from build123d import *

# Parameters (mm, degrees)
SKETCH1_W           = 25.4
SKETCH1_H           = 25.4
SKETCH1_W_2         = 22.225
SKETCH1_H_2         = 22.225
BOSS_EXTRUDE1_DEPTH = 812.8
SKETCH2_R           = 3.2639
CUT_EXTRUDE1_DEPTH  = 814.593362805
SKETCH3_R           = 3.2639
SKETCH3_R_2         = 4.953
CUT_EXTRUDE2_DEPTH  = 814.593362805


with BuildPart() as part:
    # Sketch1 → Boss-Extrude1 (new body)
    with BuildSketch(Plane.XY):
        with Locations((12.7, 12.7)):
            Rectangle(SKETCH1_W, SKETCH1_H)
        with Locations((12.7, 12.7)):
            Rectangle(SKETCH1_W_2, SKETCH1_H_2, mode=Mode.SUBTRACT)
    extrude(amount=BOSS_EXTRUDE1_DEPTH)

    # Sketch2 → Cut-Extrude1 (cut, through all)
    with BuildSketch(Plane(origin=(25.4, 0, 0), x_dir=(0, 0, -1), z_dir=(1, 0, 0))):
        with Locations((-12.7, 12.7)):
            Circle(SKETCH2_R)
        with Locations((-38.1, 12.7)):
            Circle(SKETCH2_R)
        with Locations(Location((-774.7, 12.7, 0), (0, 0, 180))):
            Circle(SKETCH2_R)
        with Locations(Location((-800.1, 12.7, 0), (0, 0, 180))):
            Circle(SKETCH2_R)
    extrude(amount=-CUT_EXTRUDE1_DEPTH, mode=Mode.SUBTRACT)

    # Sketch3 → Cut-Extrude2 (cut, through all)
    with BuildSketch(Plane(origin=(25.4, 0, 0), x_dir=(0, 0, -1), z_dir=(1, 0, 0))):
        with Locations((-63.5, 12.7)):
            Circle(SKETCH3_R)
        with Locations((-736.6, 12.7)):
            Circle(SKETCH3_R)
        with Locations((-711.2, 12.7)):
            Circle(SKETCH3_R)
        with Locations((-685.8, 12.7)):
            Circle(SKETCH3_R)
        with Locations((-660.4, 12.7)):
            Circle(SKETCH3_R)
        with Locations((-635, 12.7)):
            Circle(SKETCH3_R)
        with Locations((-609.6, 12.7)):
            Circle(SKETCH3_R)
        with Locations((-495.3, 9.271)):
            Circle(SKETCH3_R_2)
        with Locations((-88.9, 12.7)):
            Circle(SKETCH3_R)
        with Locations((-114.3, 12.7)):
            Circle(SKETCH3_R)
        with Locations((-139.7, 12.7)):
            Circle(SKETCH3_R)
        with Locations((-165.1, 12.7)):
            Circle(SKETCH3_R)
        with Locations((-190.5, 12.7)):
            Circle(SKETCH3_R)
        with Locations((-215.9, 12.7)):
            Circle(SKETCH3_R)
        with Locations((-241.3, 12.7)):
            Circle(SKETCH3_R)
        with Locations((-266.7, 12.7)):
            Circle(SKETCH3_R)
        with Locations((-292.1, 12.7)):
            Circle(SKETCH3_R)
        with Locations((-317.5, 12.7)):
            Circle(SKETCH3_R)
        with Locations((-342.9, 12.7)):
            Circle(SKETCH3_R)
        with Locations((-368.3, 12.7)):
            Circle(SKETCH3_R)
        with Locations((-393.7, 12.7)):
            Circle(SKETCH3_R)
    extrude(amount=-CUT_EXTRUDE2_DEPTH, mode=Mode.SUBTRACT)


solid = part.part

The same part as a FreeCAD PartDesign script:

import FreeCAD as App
import Part
import Sketcher
from FreeCAD import Vector
Q = App.Units.Quantity


def add_polygon(sketch, points):
    """Adds a closed chain of lines whose ends are joined by coincident constraints."""
    first, n = sketch.GeometryCount, len(points)
    for a, b in zip(points, points[1:] + points[:1]):
        sketch.addGeometry(Part.LineSegment(App.Vector(*a, 0), App.Vector(*b, 0)), False)
    for i in range(n):
        sketch.addConstraint(Sketcher.Constraint("Coincident", first + i, 2, first + (i + 1) % n, 1))

doc = App.newDocument("Part")
body = doc.addObject("PartDesign::Body", "Body")

# Sketch on XY plane
sketch1 = body.newObject("Sketcher::SketchObject", "Sketch")
sketch1.AttachmentSupport = (doc.getObject("XY_Plane"), [""])
sketch1.MapMode = "FlatFace"
add_polygon(sketch1, [(0, 25.4), (0, 0), (25.4, 0), (25.4, 25.4)])  # lines 0-3
add_polygon(sketch1, [(23.8125, 1.5875), (1.5875, 1.5875), (1.5875, 23.8125), (23.8125, 23.8125)])  # lines 4-7
sketch1.addConstraint(Sketcher.Constraint("Vertical", 0))
sketch1.addConstraint(Sketcher.Constraint("Horizontal", 1))
sketch1.addConstraint(Sketcher.Constraint("Vertical", 2))
sketch1.addConstraint(Sketcher.Constraint("Horizontal", 3))
sketch1.addConstraint(Sketcher.Constraint("Horizontal", 4))
sketch1.addConstraint(Sketcher.Constraint("Vertical", 5))
sketch1.addConstraint(Sketcher.Constraint("Horizontal", 6))
sketch1.addConstraint(Sketcher.Constraint("Vertical", 7))
sketch1.addConstraint(Sketcher.Constraint("Coincident", 0, 2, -1, 1))
sketch1.addConstraint(Sketcher.Constraint("Equal", 3, 0))
sketch1.addConstraint(Sketcher.Constraint("Equal", 6, 5))
sketch1.addConstraint(Sketcher.Constraint("DistanceX", 1, 1, 1, 2, Q("1 in")))
sketch1.addConstraint(Sketcher.Constraint("DistanceX", 4, 2, 4, 1, Q("0.875 in")))
sketch1.addConstraint(Sketcher.Constraint("DistanceX", -1, 1, 4, 2, Q("0.0625 in")))
sketch1.addConstraint(Sketcher.Constraint("DistanceY", -1, 1, 4, 2, Q("0.0625 in")))
pad1 = body.newObject("PartDesign::Pad", "Pad")
pad1.Profile = sketch1
pad1.Length = Q("32 in")

# Sketch on YZ plane
sketch2 = body.newObject("Sketcher::SketchObject", "Sketch001")
sketch2.AttachmentSupport = (doc.getObject("YZ_Plane"), [""])
sketch2.MapMode = "FlatFace"
sketch2.AttachmentOffset = App.Placement(Vector(0, 0, 1 * 25.4), App.Rotation())
sketch2.addGeometry(Part.Circle(Vector(12.7, 12.7, 0), Vector(0, 0, 1), 3.2639), False)
sketch2.addGeometry(Part.Circle(Vector(12.7, 38.1, 0), Vector(0, 0, 1), 3.2639), False)
sketch2.addGeometry(Part.Circle(Vector(12.7, 774.7, 0), Vector(0, 0, 1), 3.2639), False)
sketch2.addGeometry(Part.Circle(Vector(12.7, 800.1, 0), Vector(0, 0, 1), 3.2639), False)
sketch2.addConstraint(Sketcher.Constraint("Equal", 0, 1))
sketch2.addConstraint(Sketcher.Constraint("Equal", 1, 2))
sketch2.addConstraint(Sketcher.Constraint("Equal", 2, 3))
sketch2.addConstraint(Sketcher.Constraint("Vertical", 0, 3, 1, 3))
sketch2.addConstraint(Sketcher.Constraint("Vertical", 1, 3, 2, 3))
sketch2.addConstraint(Sketcher.Constraint("Vertical", 2, 3, 3, 3))
sketch2.addConstraint(Sketcher.Constraint("Diameter", 0, Q("0.257 in")))
sketch2.addConstraint(Sketcher.Constraint("DistanceY", 0, 3, 1, 3, Q("1 in")))
sketch2.addConstraint(Sketcher.Constraint("DistanceY", 1, 3, 2, 3, Q("29 in")))
sketch2.addConstraint(Sketcher.Constraint("DistanceY", 2, 3, 3, 3, Q("1 in")))
sketch2.addConstraint(Sketcher.Constraint("DistanceX", -1, 1, 0, 3, Q("0.5 in")))
sketch2.addConstraint(Sketcher.Constraint("DistanceY", -1, 1, 0, 3, Q("0.5 in")))
pocket1 = body.newObject("PartDesign::Pocket", "Pocket")
pocket1.Profile = sketch2
pocket1.Type = "ThroughAll"

# Sketch on YZ plane
sketch3 = body.newObject("Sketcher::SketchObject", "Sketch002")
sketch3.AttachmentSupport = (doc.getObject("YZ_Plane"), [""])
sketch3.MapMode = "FlatFace"
sketch3.AttachmentOffset = App.Placement(Vector(0, 0, 1 * 25.4), App.Rotation())
sketch3.addGeometry(Part.Circle(Vector(12.7, 63.5, 0), Vector(0, 0, 1), 3.2639), False)
sketch3.addGeometry(Part.Circle(Vector(12.7, 736.6, 0), Vector(0, 0, 1), 3.2639), False)
sketch3.addGeometry(Part.Circle(Vector(12.7, 711.2, 0), Vector(0, 0, 1), 3.2639), False)
sketch3.addGeometry(Part.Circle(Vector(12.7, 685.8, 0), Vector(0, 0, 1), 3.2639), False)
sketch3.addGeometry(Part.Circle(Vector(12.7, 660.4, 0), Vector(0, 0, 1), 3.2639), False)
sketch3.addGeometry(Part.Circle(Vector(12.7, 635, 0), Vector(0, 0, 1), 3.2639), False)
sketch3.addGeometry(Part.Circle(Vector(12.7, 609.6, 0), Vector(0, 0, 1), 3.2639), False)
sketch3.addGeometry(Part.Circle(Vector(9.271, 495.3, 0), Vector(0, 0, 1), 4.953), False)
sketch3.addGeometry(Part.Circle(Vector(12.7, 88.9, 0), Vector(0, 0, 1), 3.2639), False)
sketch3.addGeometry(Part.Circle(Vector(12.7, 114.3, 0), Vector(0, 0, 1), 3.2639), False)
sketch3.addGeometry(Part.Circle(Vector(12.7, 139.7, 0), Vector(0, 0, 1), 3.2639), False)
sketch3.addGeometry(Part.Circle(Vector(12.7, 165.1, 0), Vector(0, 0, 1), 3.2639), False)
sketch3.addGeometry(Part.Circle(Vector(12.7, 190.5, 0), Vector(0, 0, 1), 3.2639), False)
sketch3.addGeometry(Part.Circle(Vector(12.7, 215.9, 0), Vector(0, 0, 1), 3.2639), False)
sketch3.addGeometry(Part.Circle(Vector(12.7, 241.3, 0), Vector(0, 0, 1), 3.2639), False)
sketch3.addGeometry(Part.Circle(Vector(12.7, 266.7, 0), Vector(0, 0, 1), 3.2639), False)
sketch3.addGeometry(Part.Circle(Vector(12.7, 292.1, 0), Vector(0, 0, 1), 3.2639), False)
sketch3.addGeometry(Part.Circle(Vector(12.7, 317.5, 0), Vector(0, 0, 1), 3.2639), False)
sketch3.addGeometry(Part.Circle(Vector(12.7, 342.9, 0), Vector(0, 0, 1), 3.2639), False)
sketch3.addGeometry(Part.Circle(Vector(12.7, 368.3, 0), Vector(0, 0, 1), 3.2639), False)
sketch3.addGeometry(Part.Circle(Vector(12.7, 393.7, 0), Vector(0, 0, 1), 3.2639), False)
sketch3.addConstraint(Sketcher.Constraint("Equal", 0, 1))
sketch3.addConstraint(Sketcher.Constraint("Equal", 1, 2))
sketch3.addConstraint(Sketcher.Constraint("Equal", 2, 3))
sketch3.addConstraint(Sketcher.Constraint("Equal", 3, 4))
sketch3.addConstraint(Sketcher.Constraint("Equal", 4, 5))
sketch3.addConstraint(Sketcher.Constraint("Equal", 5, 6))
sketch3.addConstraint(Sketcher.Constraint("Equal", 6, 8))
sketch3.addConstraint(Sketcher.Constraint("Equal", 8, 9))
sketch3.addConstraint(Sketcher.Constraint("Equal", 9, 10))
sketch3.addConstraint(Sketcher.Constraint("Equal", 10, 11))
sketch3.addConstraint(Sketcher.Constraint("Equal", 11, 12))
sketch3.addConstraint(Sketcher.Constraint("Equal", 12, 13))
sketch3.addConstraint(Sketcher.Constraint("Equal", 13, 14))
sketch3.addConstraint(Sketcher.Constraint("Equal", 14, 15))
sketch3.addConstraint(Sketcher.Constraint("Equal", 15, 16))
sketch3.addConstraint(Sketcher.Constraint("Equal", 16, 17))
sketch3.addConstraint(Sketcher.Constraint("Equal", 17, 18))
sketch3.addConstraint(Sketcher.Constraint("Equal", 18, 19))
sketch3.addConstraint(Sketcher.Constraint("Equal", 19, 20))
sketch3.addConstraint(Sketcher.Constraint("Vertical", 0, 3, 1, 3))
sketch3.addConstraint(Sketcher.Constraint("Vertical", 1, 3, 2, 3))
sketch3.addConstraint(Sketcher.Constraint("Vertical", 2, 3, 3, 3))
sketch3.addConstraint(Sketcher.Constraint("Vertical", 3, 3, 4, 3))
sketch3.addConstraint(Sketcher.Constraint("Vertical", 4, 3, 5, 3))
sketch3.addConstraint(Sketcher.Constraint("Vertical", 5, 3, 6, 3))
sketch3.addConstraint(Sketcher.Constraint("Vertical", 6, 3, 8, 3))
sketch3.addConstraint(Sketcher.Constraint("Vertical", 8, 3, 9, 3))
sketch3.addConstraint(Sketcher.Constraint("Vertical", 9, 3, 10, 3))
sketch3.addConstraint(Sketcher.Constraint("Vertical", 10, 3, 11, 3))
sketch3.addConstraint(Sketcher.Constraint("Vertical", 11, 3, 12, 3))
sketch3.addConstraint(Sketcher.Constraint("Vertical", 12, 3, 13, 3))
sketch3.addConstraint(Sketcher.Constraint("Vertical", 13, 3, 14, 3))
sketch3.addConstraint(Sketcher.Constraint("Vertical", 14, 3, 15, 3))
sketch3.addConstraint(Sketcher.Constraint("Vertical", 15, 3, 16, 3))
sketch3.addConstraint(Sketcher.Constraint("Vertical", 16, 3, 17, 3))
sketch3.addConstraint(Sketcher.Constraint("Vertical", 17, 3, 18, 3))
sketch3.addConstraint(Sketcher.Constraint("Vertical", 18, 3, 19, 3))
sketch3.addConstraint(Sketcher.Constraint("Vertical", 19, 3, 20, 3))
sketch3.addConstraint(Sketcher.Constraint("Diameter", 7, Q("0.39 in")))
sketch3.addConstraint(Sketcher.Constraint("Diameter", 0, Q("0.257 in")))
sketch3.addConstraint(Sketcher.Constraint("DistanceY", -1, 1, 1, 3, Q("29 in")))
sketch3.addConstraint(Sketcher.Constraint("DistanceY", -1, 1, 2, 3, Q("28 in")))
sketch3.addConstraint(Sketcher.Constraint("DistanceY", -1, 1, 3, 3, Q("27 in")))
sketch3.addConstraint(Sketcher.Constraint("DistanceY", -1, 1, 4, 3, Q("26 in")))
sketch3.addConstraint(Sketcher.Constraint("DistanceY", -1, 1, 5, 3, Q("25 in")))
sketch3.addConstraint(Sketcher.Constraint("DistanceY", -1, 1, 6, 3, Q("24 in")))
sketch3.addConstraint(Sketcher.Constraint("DistanceY", 0, 3, 8, 3, Q("1 in")))
sketch3.addConstraint(Sketcher.Constraint("DistanceY", 8, 3, 7, 3, Q("16 in")))
sketch3.addConstraint(Sketcher.Constraint("DistanceY", 8, 3, 9, 3, Q("1 in")))
sketch3.addConstraint(Sketcher.Constraint("DistanceY", 9, 3, 10, 3, Q("1 in")))
sketch3.addConstraint(Sketcher.Constraint("DistanceY", 10, 3, 11, 3, Q("1 in")))
sketch3.addConstraint(Sketcher.Constraint("DistanceY", 11, 3, 12, 3, Q("1 in")))
sketch3.addConstraint(Sketcher.Constraint("DistanceY", 12, 3, 13, 3, Q("1 in")))
sketch3.addConstraint(Sketcher.Constraint("DistanceY", 13, 3, 14, 3, Q("1 in")))
sketch3.addConstraint(Sketcher.Constraint("DistanceY", 14, 3, 15, 3, Q("1 in")))
sketch3.addConstraint(Sketcher.Constraint("DistanceY", 15, 3, 16, 3, Q("1 in")))
sketch3.addConstraint(Sketcher.Constraint("DistanceY", 16, 3, 17, 3, Q("1 in")))
sketch3.addConstraint(Sketcher.Constraint("DistanceY", 17, 3, 18, 3, Q("1 in")))
sketch3.addConstraint(Sketcher.Constraint("DistanceY", 18, 3, 19, 3, Q("1 in")))
sketch3.addConstraint(Sketcher.Constraint("DistanceY", 19, 3, 20, 3, Q("1 in")))
sketch3.addConstraint(Sketcher.Constraint("DistanceX", -1, 1, 0, 3, Q("0.5 in")))
sketch3.addConstraint(Sketcher.Constraint("DistanceY", -1, 1, 0, 3, Q("2.5 in")))
sketch3.addConstraint(Sketcher.Constraint("DistanceX", -1, 1, 7, 3, Q("0.365 in")))
pocket2 = body.newObject("PartDesign::Pocket", "Pocket001")
pocket2.Profile = sketch3
pocket2.Type = "ThroughAll"

doc.recompute()
